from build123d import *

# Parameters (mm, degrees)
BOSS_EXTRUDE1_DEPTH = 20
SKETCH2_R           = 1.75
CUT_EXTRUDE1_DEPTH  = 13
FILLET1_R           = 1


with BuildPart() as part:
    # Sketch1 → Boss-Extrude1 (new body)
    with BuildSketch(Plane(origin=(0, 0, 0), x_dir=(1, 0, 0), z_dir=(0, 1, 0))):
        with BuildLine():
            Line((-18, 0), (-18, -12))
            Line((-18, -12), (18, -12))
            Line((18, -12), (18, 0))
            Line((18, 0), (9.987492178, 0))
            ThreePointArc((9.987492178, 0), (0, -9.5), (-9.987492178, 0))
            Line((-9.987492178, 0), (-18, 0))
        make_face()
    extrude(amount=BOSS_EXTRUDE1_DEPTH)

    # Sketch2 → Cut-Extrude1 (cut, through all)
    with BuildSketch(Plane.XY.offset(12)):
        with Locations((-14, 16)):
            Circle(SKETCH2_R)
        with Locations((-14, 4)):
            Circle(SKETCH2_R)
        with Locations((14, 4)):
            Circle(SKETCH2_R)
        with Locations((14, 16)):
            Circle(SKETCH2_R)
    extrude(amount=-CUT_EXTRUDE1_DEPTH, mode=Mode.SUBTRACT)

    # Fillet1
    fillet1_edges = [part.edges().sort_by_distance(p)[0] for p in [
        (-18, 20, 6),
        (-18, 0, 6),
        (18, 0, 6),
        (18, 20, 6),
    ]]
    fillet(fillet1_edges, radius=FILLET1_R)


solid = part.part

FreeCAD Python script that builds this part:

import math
import FreeCAD as App
import Part
import Sketcher
Q = App.Units.Quantity


def edges_at(feature, points):
    """Names of the edges that pass closest to the given points."""
    edges = feature.Shape.Edges
    near = lambda p: min(range(len(edges)), key=lambda i: edges[i].distToShape(Part.Vertex(*p))[0])
    return sorted({f"Edge{near(p) + 1}" for p in points})

doc = App.newDocument("Part")
body = doc.addObject("PartDesign::Body", "Body")

# Sketch on XZ plane
sketch1 = body.newObject("Sketcher::SketchObject", "Sketch")
sketch1.AttachmentSupport = (doc.getObject("XZ_Plane"), [""])
sketch1.MapMode = "FlatFace"
sketch1.addGeometry([
    Part.LineSegment(App.Vector(-18, 0, 0), App.Vector(-18, 12, 0)),  # 0
    Part.LineSegment(App.Vector(-18, 12, 0), App.Vector(18, 12, 0)),  # 1
    Part.LineSegment(App.Vector(18, 12, 0), App.Vector(18, 0, 0)),  # 2
    Part.LineSegment(App.Vector(18, 0, 0), App.Vector(10, 0, 0)),  # 3
    Part.ArcOfCircle(Part.Circle(App.Vector(0, 0, 0), App.Vector(0, 0, 1), 10), math.radians(3), math.radians(177)),  # 4
    Part.LineSegment(App.Vector(-10, 0, 0), App.Vector(-18, 0, 0)),  # 5
], False)
sketch1.addConstraint([
    Sketcher.Constraint("Coincident", 0, 2, 1, 1),
    Sketcher.Constraint("Coincident", 1, 2, 2, 1),
    Sketcher.Constraint("Coincident", 2, 2, 3, 1),
    Sketcher.Constraint("Coincident", 3, 2, 4, 1),
    Sketcher.Constraint("Coincident", 4, 2, 5, 1),
    Sketcher.Constraint("Coincident", 5, 2, 0, 1),
    Sketcher.Constraint("Vertical", 0),
    Sketcher.Constraint("Horizontal", 1),
    Sketcher.Constraint("Vertical", 2),
    Sketcher.Constraint("Horizontal", 3),
    Sketcher.Constraint("Horizontal", 5),
    Sketcher.Constraint("Symmetric", 3, 2, 4, 2, -1, 1),
    Sketcher.Constraint("Symmetric", 2, 2, 5, 2, -2),
    Sketcher.Constraint("Radius", 4, Q("10 mm")),
    Sketcher.Constraint("DistanceX", 1, 1, 1, 2, Q("36 mm")),
    Sketcher.Constraint("DistanceY", 0, 1, 0, 2, Q("12 mm")),
    Sketcher.Constraint("DistanceY", 4, 3, -1, 1, Q("0.5 mm")),
])
pad1 = body.newObject("PartDesign::Pad", "Pad")
pad1.Profile = sketch1
pad1.Length = 20
pad1.Reversed = True

# Sketch on XY plane
sketch2 = body.newObject("Sketcher::SketchObject", "Sketch001")
sketch2.AttachmentSupport = (doc.getObject("XY_Plane"), [""])
sketch2.MapMode = "FlatFace"
sketch2.AttachmentOffset = App.Placement(App.Vector(0, 0, 12), App.Rotation())
sketch2.addGeometry([
    Part.Circle(App.Vector(-14, 16, 0), App.Vector(0, 0, 1), 1.8),
    Part.Circle(App.Vector(-14, 4, 0), App.Vector(0, 0, 1), 1.8),
    Part.Circle(App.Vector(14, 4, 0), App.Vector(0, 0, 1), 1.8),
    Part.Circle(App.Vector(14, 16, 0), App.Vector(0, 0, 1), 1.8),
], False)
sketch2.addConstraint([
    Sketcher.Constraint("Equal", 0, 1),
    Sketcher.Constraint("Equal", 1, 2),
    Sketcher.Constraint("Equal", 2, 3),
    Sketcher.Constraint("Symmetric", 1, 3, 2, 3, -2),
    Sketcher.Constraint("Symmetric", 0, 3, 3, 3, -2),
    Sketcher.Constraint("Vertical", 0, 3, 1, 3),
    Sketcher.Constraint("Diameter", 0, Q("3.5 mm")),
    Sketcher.Constraint("DistanceX", 0, 3, -1, 1, Q("14 mm")),
    Sketcher.Constraint("DistanceY", -1, 1, 0, 3, Q("16 mm")),
    Sketcher.Constraint("DistanceY", -1, 1, 1, 3, Q("4 mm")),
])
pocket1 = body.newObject("PartDesign::Pocket", "Pocket")
pocket1.Profile = sketch2
pocket1.Type = "ThroughAll"
doc.recompute()

fillet = body.newObject("PartDesign::Fillet", "Fillet")
fillet.Base = (pocket1, edges_at(pocket1, [
    (-18, 20, 6),
    (-18, 0, 6),
    (18, 0, 6),
    (18, 20, 6),
]))
fillet.Radius = 1

doc.recompute()
